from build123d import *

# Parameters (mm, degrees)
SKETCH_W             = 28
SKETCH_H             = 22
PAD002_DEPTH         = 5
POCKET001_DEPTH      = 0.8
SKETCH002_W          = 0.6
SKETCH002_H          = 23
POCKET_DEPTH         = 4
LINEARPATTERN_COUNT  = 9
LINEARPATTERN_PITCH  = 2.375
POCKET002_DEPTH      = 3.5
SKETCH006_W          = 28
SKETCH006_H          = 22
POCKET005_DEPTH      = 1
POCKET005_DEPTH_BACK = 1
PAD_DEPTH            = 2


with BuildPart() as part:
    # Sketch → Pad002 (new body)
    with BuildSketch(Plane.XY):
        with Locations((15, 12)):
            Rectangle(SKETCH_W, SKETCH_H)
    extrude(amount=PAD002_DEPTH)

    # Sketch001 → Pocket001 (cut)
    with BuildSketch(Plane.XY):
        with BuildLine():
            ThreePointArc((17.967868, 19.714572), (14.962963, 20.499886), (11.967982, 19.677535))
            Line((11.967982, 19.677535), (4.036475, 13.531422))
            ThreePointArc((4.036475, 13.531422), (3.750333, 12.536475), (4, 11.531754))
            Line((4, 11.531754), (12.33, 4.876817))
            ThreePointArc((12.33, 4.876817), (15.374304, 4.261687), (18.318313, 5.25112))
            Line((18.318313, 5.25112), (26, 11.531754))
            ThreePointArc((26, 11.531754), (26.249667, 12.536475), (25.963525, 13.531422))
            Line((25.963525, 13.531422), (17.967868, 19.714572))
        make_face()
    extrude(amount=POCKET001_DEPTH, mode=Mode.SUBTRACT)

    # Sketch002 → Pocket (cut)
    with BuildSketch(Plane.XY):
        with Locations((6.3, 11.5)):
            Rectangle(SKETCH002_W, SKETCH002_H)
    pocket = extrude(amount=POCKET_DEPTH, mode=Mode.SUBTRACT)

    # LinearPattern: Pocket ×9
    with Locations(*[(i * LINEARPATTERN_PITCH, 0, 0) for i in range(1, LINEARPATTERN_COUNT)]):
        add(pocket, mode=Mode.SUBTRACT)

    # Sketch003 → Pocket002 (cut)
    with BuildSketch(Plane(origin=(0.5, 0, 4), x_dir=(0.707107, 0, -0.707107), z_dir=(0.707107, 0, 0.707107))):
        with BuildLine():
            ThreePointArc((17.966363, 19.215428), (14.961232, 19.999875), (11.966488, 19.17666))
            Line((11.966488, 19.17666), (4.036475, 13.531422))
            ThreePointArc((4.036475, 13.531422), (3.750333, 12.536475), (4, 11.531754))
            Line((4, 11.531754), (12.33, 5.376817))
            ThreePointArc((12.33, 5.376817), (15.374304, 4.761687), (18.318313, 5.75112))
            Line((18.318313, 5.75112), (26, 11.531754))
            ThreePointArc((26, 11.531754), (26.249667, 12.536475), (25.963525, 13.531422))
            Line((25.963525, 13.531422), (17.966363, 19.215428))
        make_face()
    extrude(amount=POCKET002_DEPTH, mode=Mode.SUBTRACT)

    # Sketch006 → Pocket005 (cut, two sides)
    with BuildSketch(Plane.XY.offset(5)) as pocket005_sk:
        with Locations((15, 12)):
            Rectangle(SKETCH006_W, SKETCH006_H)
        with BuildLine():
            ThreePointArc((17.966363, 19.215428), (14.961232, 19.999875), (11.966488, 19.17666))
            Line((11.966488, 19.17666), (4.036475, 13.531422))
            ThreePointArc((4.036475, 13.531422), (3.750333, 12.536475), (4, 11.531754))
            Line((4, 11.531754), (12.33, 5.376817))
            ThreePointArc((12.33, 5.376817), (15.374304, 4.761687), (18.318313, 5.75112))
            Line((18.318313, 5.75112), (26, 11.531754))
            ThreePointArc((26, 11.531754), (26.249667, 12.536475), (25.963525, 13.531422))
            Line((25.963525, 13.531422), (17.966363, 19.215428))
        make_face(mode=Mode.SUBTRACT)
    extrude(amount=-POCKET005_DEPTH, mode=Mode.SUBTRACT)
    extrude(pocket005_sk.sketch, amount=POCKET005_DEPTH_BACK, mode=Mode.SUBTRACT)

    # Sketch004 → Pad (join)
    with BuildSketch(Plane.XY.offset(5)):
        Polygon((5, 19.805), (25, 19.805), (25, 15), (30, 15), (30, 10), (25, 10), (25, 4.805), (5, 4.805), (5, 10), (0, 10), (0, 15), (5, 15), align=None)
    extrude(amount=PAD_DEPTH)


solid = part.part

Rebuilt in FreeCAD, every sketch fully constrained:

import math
import FreeCAD as App
import Part
import Sketcher
Q = App.Units.Quantity

doc = App.newDocument("Part")
body = doc.addObject("PartDesign::Body", "Body")

# Sketch on XY plane
sketch1 = body.newObject("Sketcher::SketchObject", "Sketch")
sketch1.AttachmentSupport = (doc.getObject("XY_Plane"), [""])
sketch1.MapMode = "FlatFace"
sketch1.addGeometry(Part.LineSegment(App.Vector(1, 23, 0), App.Vector(1, 1, 0)), False)
sketch1.addGeometry(Part.LineSegment(App.Vector(1, 1, 0), App.Vector(29, 1, 0)), False)
sketch1.addGeometry(Part.LineSegment(App.Vector(29, 1, 0), App.Vector(29, 23, 0)), False)
sketch1.addGeometry(Part.LineSegment(App.Vector(29, 23, 0), App.Vector(1, 23, 0)), False)
sketch1.addConstraint(Sketcher.Constraint("Coincident", 0, 2, 1, 1))
sketch1.addConstraint(Sketcher.Constraint("Coincident", 1, 2, 2, 1))
sketch1.addConstraint(Sketcher.Constraint("Coincident", 2, 2, 3, 1))
sketch1.addConstraint(Sketcher.Constraint("Coincident", 3, 2, 0, 1))
sketch1.addConstraint(Sketcher.Constraint("Vertical", 0))
sketch1.addConstraint(Sketcher.Constraint("Horizontal", 1))
sketch1.addConstraint(Sketcher.Constraint("Vertical", 2))
sketch1.addConstraint(Sketcher.Constraint("Horizontal", 3))
sketch1.addConstraint(Sketcher.Constraint("DistanceX", 1, 1, 1, 2, Q("28 mm")))
sketch1.addConstraint(Sketcher.Constraint("DistanceY", 0, 2, 0, 1, Q("22 mm")))
sketch1.addConstraint(Sketcher.Constraint("DistanceX", -1, 1, 0, 2, Q("1 mm")))
sketch1.addConstraint(Sketcher.Constraint("DistanceY", -1, 1, 0, 2, Q("1 mm")))
pad1 = body.newObject("PartDesign::Pad", "Pad")
pad1.Profile = sketch1
pad1.Length = 5

# Sketch on XY plane
sketch2 = body.newObject("Sketcher::SketchObject", "Sketch001")
sketch2.AttachmentSupport = (doc.getObject("XY_Plane"), [""])
sketch2.MapMode = "FlatFace"
sketch2.addGeometry(Part.ArcOfCircle(Part.Circle(App.Vector(15, 14.5, 0), App.Vector(0, 0, 1), 6), math.radians(60), math.radians(120)), False)
sketch2.addGeometry(Part.LineSegment(App.Vector(12, 19.7, 0), App.Vector(4, 13.5, 0)), False)
sketch2.addGeometry(Part.ArcOfCircle(Part.Circle(App.Vector(5.8, 12.5, 0), App.Vector(0, 0, 1), 2), math.radians(149), math.radians(209)), False)
sketch2.addGeometry(Part.LineSegment(App.Vector(4, 11.5, 0), App.Vector(12.3, 4.9, 0)), False)
sketch2.addGeometry(Part.ArcOfCircle(Part.Circle(App.Vector(15, 10.3, 0), App.Vector(0, 0, 1), 6), math.radians(-116), math.radians(-56)), False)
sketch2.addGeometry(Part.LineSegment(App.Vector(18.3, 5.3, 0), App.Vector(26, 11.5, 0)), False)
sketch2.addGeometry(Part.ArcOfCircle(Part.Circle(App.Vector(24.2, 12.5, 0), App.Vector(0, 0, 1), 2), math.radians(-29), math.radians(31)), False)
sketch2.addGeometry(Part.LineSegment(App.Vector(26, 13.5, 0), App.Vector(18, 19.7, 0)), False)
sketch2.addConstraint(Sketcher.Constraint("Coincident", 0, 2, 1, 1))
sketch2.addConstraint(Sketcher.Constraint("Coincident", 1, 2, 2, 1))
sketch2.addConstraint(Sketcher.Constraint("Coincident", 2, 2, 3, 1))
sketch2.addConstraint(Sketcher.Constraint("Coincident", 3, 2, 4, 1))
sketch2.addConstraint(Sketcher.Constraint("Coincident", 4, 2, 5, 1))
sketch2.addConstraint(Sketcher.Constraint("Coincident", 5, 2, 6, 1))
sketch2.addConstraint(Sketcher.Constraint("Coincident", 6, 2, 7, 1))
sketch2.addConstraint(Sketcher.Constraint("Coincident", 7, 2, 0, 1))
sketch2.addConstraint(Sketcher.Constraint("Equal", 2, 6))
sketch2.addConstraint(Sketcher.Constraint("Horizontal", 2, 3, 6, 3))
sketch2.addConstraint(Sketcher.Constraint("Horizontal", 2, 2, 5, 2))
sketch2.addConstraint(Sketcher.Constraint("Horizontal", 1, 2, 6, 2))
sketch2.addConstraint(Sketcher.Constraint("Vertical", 0, 3, 4, 3))
sketch2.addConstraint(Sketcher.Constraint("Radius", 0, Q("5.999999 mm")))
sketch2.addConstraint(Sketcher.Constraint("Radius", 2, Q("2.000002 mm")))
sketch2.addConstraint(Sketcher.Constraint("Radius", 4, Q("6.000001 mm")))
sketch2.addConstraint(Sketcher.Constraint("DistanceX", -1, 1, 0, 3, Q("15 mm")))
sketch2.addConstraint(Sketcher.Constraint("DistanceX", -1, 1, 2, 2, Q("4 mm")))
sketch2.addConstraint(Sketcher.Constraint("DistanceX", -1, 1, 5, 2, Q("26 mm")))
sketch2.addConstraint(Sketcher.Constraint("DistanceY", 2, 3, 0, 3, Q("2.000002 mm")))
sketch2.addConstraint(Sketcher.Constraint("DistanceY", -1, 1, 0, 3, Q("14.500001 mm")))
sketch2.addConstraint(Sketcher.Constraint("DistanceY", -1, 1, 4, 3, Q("10.250002 mm")))
sketch2.addConstraint(Sketcher.Constraint("DistanceX", -1, 1, 3, 2, Q("12.33 mm")))
sketch2.addConstraint(Sketcher.Constraint("DistanceX", 2, 3, 4, 3, Q("9.249998 mm")))
sketch2.addConstraint(Sketcher.Constraint("DistanceY", 4, 2, 6, 2, Q("8.280302 mm")))
sketch2.addConstraint(Sketcher.Constraint("DistanceX", -1, 1, 0, 2, Q("11.967982 mm")))
sketch2.addConstraint(Sketcher.Constraint("DistanceY", -1, 1, 1, 2, Q("13.531422 mm")))
sketch2.addConstraint(Sketcher.Constraint("DistanceX", 0, 3, 7, 2, Q("2.967868 mm")))
pocket1 = body.newObject("PartDesign::Pocket", "Pocket")
pocket1.Profile = sketch2
pocket1.Length = 0.8
pocket1.Reversed = True

# Sketch on XY plane
sketch3 = body.newObject("Sketcher::SketchObject", "Sketch002")
sketch3.AttachmentSupport = (doc.getObject("XY_Plane"), [""])
sketch3.MapMode = "FlatFace"
sketch3.addGeometry(Part.LineSegment(App.Vector(6, 23, 0), App.Vector(6, 0, 0)), False)
sketch3.addGeometry(Part.LineSegment(App.Vector(6, 0, 0), App.Vector(6.6, 0, 0)), False)
sketch3.addGeometry(Part.LineSegment(App.Vector(6.6, 0, 0), App.Vector(6.6, 23, 0)), False)
sketch3.addGeometry(Part.LineSegment(App.Vector(6.6, 23, 0), App.Vector(6, 23, 0)), False)
sketch3.addConstraint(Sketcher.Constraint("Coincident", 0, 2, 1, 1))
sketch3.addConstraint(Sketcher.Constraint("Coincident", 1, 2, 2, 1))
sketch3.addConstraint(Sketcher.Constraint("Coincident", 2, 2, 3, 1))
sketch3.addConstraint(Sketcher.Constraint("Coincident", 3, 2, 0, 1))
sketch3.addConstraint(Sketcher.Constraint("Vertical", 0))
sketch3.addConstraint(Sketcher.Constraint("Horizontal", 1))
sketch3.addConstraint(Sketcher.Constraint("Vertical", 2))
sketch3.addConstraint(Sketcher.Constraint("Horizontal", 3))
sketch3.addConstraint(Sketcher.Constraint("PointOnObject", 0, 2, -1))
sketch3.addConstraint(Sketcher.Constraint("DistanceY", 0, 2, 0, 1, Q("23 mm")))
sketch3.addConstraint(Sketcher.Constraint("DistanceX", 1, 1, 1, 2, Q("0.6 mm")))
sketch3.addConstraint(Sketcher.Constraint("DistanceX", -1, 1, 0, 2, Q("6 mm")))
pocket2 = body.newObject("PartDesign::Pocket", "Pocket001")
pocket2.Profile = sketch3
pocket2.Length = 4
pocket2.Reversed = True
doc.recompute()

linearpattern = body.newObject("PartDesign::LinearPattern", "LinearPattern")
linearpattern.Originals = [pocket2]
linearpattern.Direction = (doc.getObject("X_Axis"), [""])
linearpattern.Mode = "offset"
linearpattern.Offset = 2.375
linearpattern.Occurrences = 9
body.Tip = linearpattern

# Sketch on an angled plane
sketch4 = body.newObject("Sketcher::SketchObject", "Sketch003")
sketch4.Placement = App.Placement(App.Vector(0.5, 0, 4), App.Rotation(App.Vector(0.707106781, 0, -0.707106781), App.Vector(0, 0.999999999, 0), App.Vector(0.707106781, 0, 0.707106781), "ZXY"))
sketch4.addGeometry(Part.ArcOfCircle(Part.Circle(App.Vector(15, 14, 0), App.Vector(0, 0, 1), 6), math.radians(60), math.radians(120)), False)
sketch4.addGeometry(Part.LineSegment(App.Vector(12, 19.2, 0), App.Vector(4, 13.5, 0)), False)
sketch4.addGeometry(Part.ArcOfCircle(Part.Circle(App.Vector(5.8, 12.5, 0), App.Vector(0, 0, 1), 2), math.radians(149), math.radians(209)), False)
sketch4.addGeometry(Part.LineSegment(App.Vector(4, 11.5, 0), App.Vector(12.3, 5.4, 0)), False)
sketch4.addGeometry(Part.ArcOfCircle(Part.Circle(App.Vector(15, 10.8, 0), App.Vector(0, 0, 1), 6), math.radians(-116), math.radians(-56)), False)
sketch4.addGeometry(Part.LineSegment(App.Vector(18.3, 5.8, 0), App.Vector(26, 11.5, 0)), False)
sketch4.addGeometry(Part.ArcOfCircle(Part.Circle(App.Vector(24.2, 12.5, 0), App.Vector(0, 0, 1), 2), math.radians(-29), math.radians(31)), False)
sketch4.addGeometry(Part.LineSegment(App.Vector(26, 13.5, 0), App.Vector(18, 19.2, 0)), False)
sketch4.addConstraint(Sketcher.Constraint("Coincident", 0, 2, 1, 1))
sketch4.addConstraint(Sketcher.Constraint("Coincident", 1, 2, 2, 1))
sketch4.addConstraint(Sketcher.Constraint("Coincident", 2, 2, 3, 1))
sketch4.addConstraint(Sketcher.Constraint("Coincident", 3, 2, 4, 1))
sketch4.addConstraint(Sketcher.Constraint("Coincident", 4, 2, 5, 1))
sketch4.addConstraint(Sketcher.Constraint("Coincident", 5, 2, 6, 1))
sketch4.addConstraint(Sketcher.Constraint("Coincident", 6, 2, 7, 1))
sketch4.addConstraint(Sketcher.Constraint("Coincident", 7, 2, 0, 1))
sketch4.addConstraint(Sketcher.Constraint("Equal", 2, 6))
sketch4.addConstraint(Sketcher.Constraint("Horizontal", 2, 3, 6, 3))
sketch4.addConstraint(Sketcher.Constraint("Horizontal", 2, 2, 5, 2))
sketch4.addConstraint(Sketcher.Constraint("Horizontal", 1, 2, 6, 2))
sketch4.addConstraint(Sketcher.Constraint("Vertical", 0, 3, 4, 3))
sketch4.addConstraint(Sketcher.Constraint("Radius", 0, Q("5.999999 mm")))
sketch4.addConstraint(Sketcher.Constraint("Radius", 2, Q("2.000002 mm")))
sketch4.addConstraint(Sketcher.Constraint("Radius", 4, Q("6.000001 mm")))
sketch4.addConstraint(Sketcher.Constraint("DistanceX", -1, 1, 0, 3, Q("15 mm")))
sketch4.addConstraint(Sketcher.Constraint("DistanceY", -1, 1, 0, 3, Q("14.000001 mm")))
sketch4.addConstraint(Sketcher.Constraint("DistanceX", -1, 1, 2, 2, Q("4 mm")))
sketch4.addConstraint(Sketcher.Constraint("DistanceX", -1, 1, 5, 2, Q("26 mm")))
sketch4.addConstraint(Sketcher.Constraint("DistanceY", -1, 1, 2, 3, Q("12.5 mm")))
sketch4.addConstraint(Sketcher.Constraint("DistanceY", -1, 1, 4, 3, Q("10.750002 mm")))
sketch4.addConstraint(Sketcher.Constraint("DistanceX", -1, 1, 3, 2, Q("12.33 mm")))
sketch4.addConstraint(Sketcher.Constraint("DistanceX", 2, 3, 4, 3, Q("9.249998 mm")))
sketch4.addConstraint(Sketcher.Constraint("DistanceY", 4, 2, 6, 2, Q("7.780302 mm")))
sketch4.addConstraint(Sketcher.Constraint("DistanceY", -1, 1, 0, 2, Q("19.17666 mm")))
sketch4.addConstraint(Sketcher.Constraint("DistanceY", -1, 1, 1, 2, Q("13.531422 mm")))
sketch4.addConstraint(Sketcher.Constraint("DistanceY", 6, 3, 7, 2, Q("6.715428 mm")))
pocket3 = body.newObject("PartDesign::Pocket", "Pocket002")
pocket3.Profile = sketch4
pocket3.Length = 3.5
pocket3.Reversed = True

# Sketch on XY plane
sketch5 = body.newObject("Sketcher::SketchObject", "Sketch004")
sketch5.AttachmentSupport = (doc.getObject("XY_Plane"), [""])
sketch5.MapMode = "FlatFace"
sketch5.AttachmentOffset = App.Placement(App.Vector(0, 0, 5), App.Rotation())
sketch5.addGeometry(Part.LineSegment(App.Vector(1, 23, 0), App.Vector(1, 1, 0)), False)
sketch5.addGeometry(Part.LineSegment(App.Vector(1, 1, 0), App.Vector(29, 1, 0)), False)
sketch5.addGeometry(Part.LineSegment(App.Vector(29, 1, 0), App.Vector(29, 23, 0)), False)
sketch5.addGeometry(Part.LineSegment(App.Vector(29, 23, 0), App.Vector(1, 23, 0)), False)
sketch5.addGeometry(Part.ArcOfCircle(Part.Circle(App.Vector(15, 14, 0), App.Vector(0, 0, 1), 6), math.radians(60), math.radians(120)), False)
sketch5.addGeometry(Part.LineSegment(App.Vector(18, 19.2, 0), App.Vector(26, 13.5, 0)), False)
sketch5.addGeometry(Part.ArcOfCircle(Part.Circle(App.Vector(24.2, 12.5, 0), App.Vector(0, 0, 1), 2), math.radians(-29), math.radians(31)), False)
sketch5.addGeometry(Part.LineSegment(App.Vector(26, 11.5, 0), App.Vector(18.3, 5.8, 0)), False)
sketch5.addGeometry(Part.ArcOfCircle(Part.Circle(App.Vector(15, 10.8, 0), App.Vector(0, 0, 1), 6), math.radians(-116), math.radians(-56)), False)
sketch5.addGeometry(Part.LineSegment(App.Vector(12.3, 5.4, 0), App.Vector(4, 11.5, 0)), False)
sketch5.addGeometry(Part.ArcOfCircle(Part.Circle(App.Vector(5.8, 12.5, 0), App.Vector(0, 0, 1), 2), math.radians(149), math.radians(209)), False)
sketch5.addGeometry(Part.LineSegment(App.Vector(4, 13.5, 0), App.Vector(12, 19.2, 0)), False)
sketch5.addConstraint(Sketcher.Constraint("Coincident", 0, 2, 1, 1))
sketch5.addConstraint(Sketcher.Constraint("Coincident", 1, 2, 2, 1))
sketch5.addConstraint(Sketcher.Constraint("Coincident", 2, 2, 3, 1))
sketch5.addConstraint(Sketcher.Constraint("Coincident", 3, 2, 0, 1))
sketch5.addConstraint(Sketcher.Constraint("Coincident", 4, 1, 5, 1))
sketch5.addConstraint(Sketcher.Constraint("Coincident", 5, 2, 6, 2))
sketch5.addConstraint(Sketcher.Constraint("Coincident", 6, 1, 7, 1))
sketch5.addConstraint(Sketcher.Constraint("Coincident", 7, 2, 8, 2))
sketch5.addConstraint(Sketcher.Constraint("Coincident", 8, 1, 9, 1))
sketch5.addConstraint(Sketcher.Constraint("Coincident", 9, 2, 10, 2))
sketch5.addConstraint(Sketcher.Constraint("Coincident", 10, 1, 11, 1))
sketch5.addConstraint(Sketcher.Constraint("Coincident", 11, 2, 4, 2))
sketch5.addConstraint(Sketcher.Constraint("Vertical", 0))
sketch5.addConstraint(Sketcher.Constraint("Horizontal", 1))
sketch5.addConstraint(Sketcher.Constraint("Vertical", 2))
sketch5.addConstraint(Sketcher.Constraint("Horizontal", 3))
sketch5.addConstraint(Sketcher.Constraint("Equal", 6, 10))
sketch5.addConstraint(Sketcher.Constraint("Horizontal", 6, 3, 10, 3))
sketch5.addConstraint(Sketcher.Constraint("Horizontal", 6, 1, 9, 2))
sketch5.addConstraint(Sketcher.Constraint("Horizontal", 5, 2, 10, 1))
sketch5.addConstraint(Sketcher.Constraint("Vertical", 4, 3, 8, 3))
sketch5.addConstraint(Sketcher.Constraint("Radius", 4, Q("5.999999 mm")))
sketch5.addConstraint(Sketcher.Constraint("Radius", 6, Q("2.000002 mm")))
sketch5.addConstraint(Sketcher.Constraint("Radius", 8, Q("6.000001 mm")))
sketch5.addConstraint(Sketcher.Constraint("DistanceX", 1, 1, 1, 2, Q("28 mm")))
sketch5.addConstraint(Sketcher.Constraint("DistanceY", 0, 2, 0, 1, Q("22 mm")))
sketch5.addConstraint(Sketcher.Constraint("DistanceX", -1, 1, 4, 3, Q("15 mm")))
sketch5.addConstraint(Sketcher.Constraint("DistanceY", -1, 1, 4, 3, Q("14.000001 mm")))
sketch5.addConstraint(Sketcher.Constraint("DistanceX", -1, 1, 0, 2, Q("1 mm")))
sketch5.addConstraint(Sketcher.Constraint("DistanceY", -1, 1, 0, 2, Q("1 mm")))
sketch5.addConstraint(Sketcher.Constraint("DistanceX", -1, 1, 6, 1, Q("26 mm")))
sketch5.addConstraint(Sketcher.Constraint("DistanceX", -1, 1, 9, 2, Q("4 mm")))
sketch5.addConstraint(Sketcher.Constraint("DistanceY", -1, 1, 6, 3, Q("12.5 mm")))
sketch5.addConstraint(Sketcher.Constraint("DistanceY", -1, 1, 8, 3, Q("10.750002 mm")))
sketch5.addConstraint(Sketcher.Constraint("DistanceX", -1, 1, 8, 1, Q("12.33 mm")))
sketch5.addConstraint(Sketcher.Constraint("DistanceX", 4, 3, 6, 3, Q("9.249998 mm")))
sketch5.addConstraint(Sketcher.Constraint("DistanceY", 7, 2, 5, 2, Q("7.780302 mm")))
sketch5.addConstraint(Sketcher.Constraint("DistanceY", -1, 1, 4, 1, Q("19.215428 mm")))
sketch5.addConstraint(Sketcher.Constraint("DistanceY", -1, 1, 5, 2, Q("13.531422 mm")))
sketch5.addConstraint(Sketcher.Constraint("DistanceY", -1, 1, 11, 2, Q("19.17666 mm")))
pocket4 = body.newObject("PartDesign::Pocket", "Pocket003")
pocket4.Profile = sketch5
pocket4.Type = "TwoLengths"
pocket4.Length = 1
pocket4.Length2 = 1

# Sketch on XY plane
sketch6 = body.newObject("Sketcher::SketchObject", "Sketch005")
sketch6.AttachmentSupport = (doc.getObject("XY_Plane"), [""])
sketch6.MapMode = "FlatFace"
sketch6.AttachmentOffset = App.Placement(App.Vector(0, 0, 5), App.Rotation())
sketch6.addGeometry(Part.LineSegment(App.Vector(25, 19.8, 0), App.Vector(5, 19.8, 0)), False)
sketch6.addGeometry(Part.LineSegment(App.Vector(5, 19.8, 0), App.Vector(5, 15, 0)), False)
sketch6.addGeometry(Part.LineSegment(App.Vector(5, 15, 0), App.Vector(0, 15, 0)), False)
sketch6.addGeometry(Part.LineSegment(App.Vector(0, 15, 0), App.Vector(0, 10, 0)), False)
sketch6.addGeometry(Part.LineSegment(App.Vector(0, 10, 0), App.Vector(5, 10, 0)), False)
sketch6.addGeometry(Part.LineSegment(App.Vector(5, 10, 0), App.Vector(5, 4.8, 0)), False)
sketch6.addGeometry(Part.LineSegment(App.Vector(5, 4.8, 0), App.Vector(25, 4.8, 0)), False)
sketch6.addGeometry(Part.LineSegment(App.Vector(25, 4.8, 0), App.Vector(25, 10, 0)), False)
sketch6.addGeometry(Part.LineSegment(App.Vector(25, 10, 0), App.Vector(30, 10, 0)), False)
sketch6.addGeometry(Part.LineSegment(App.Vector(30, 10, 0), App.Vector(30, 15, 0)), False)
sketch6.addGeometry(Part.LineSegment(App.Vector(30, 15, 0), App.Vector(25, 15, 0)), False)
sketch6.addGeometry(Part.LineSegment(App.Vector(25, 15, 0), App.Vector(25, 19.8, 0)), False)
sketch6.addConstraint(Sketcher.Constraint("Coincident", 0, 2, 1, 1))
sketch6.addConstraint(Sketcher.Constraint("Coincident", 1, 2, 2, 1))
sketch6.addConstraint(Sketcher.Constraint("Coincident", 2, 2, 3, 1))
sketch6.addConstraint(Sketcher.Constraint("Coincident", 3, 2, 4, 1))
sketch6.addConstraint(Sketcher.Constraint("Coincident", 4, 2, 5, 1))
sketch6.addConstraint(Sketcher.Constraint("Coincident", 5, 2, 6, 1))
sketch6.addConstraint(Sketcher.Constraint("Coincident", 6, 2, 7, 1))
sketch6.addConstraint(Sketcher.Constraint("Coincident", 7, 2, 8, 1))
sketch6.addConstraint(Sketcher.Constraint("Coincident", 8, 2, 9, 1))
sketch6.addConstraint(Sketcher.Constraint("Coincident", 9, 2, 10, 1))
sketch6.addConstraint(Sketcher.Constraint("Coincident", 10, 2, 11, 1))
sketch6.addConstraint(Sketcher.Constraint("Coincident", 11, 2, 0, 1))
sketch6.addConstraint(Sketcher.Constraint("Horizontal", 0))
sketch6.addConstraint(Sketcher.Constraint("Vertical", 1))
sketch6.addConstraint(Sketcher.Constraint("Horizontal", 2))
sketch6.addConstraint(Sketcher.Constraint("Vertical", 3))
sketch6.addConstraint(Sketcher.Constraint("Horizontal", 4))
sketch6.addConstraint(Sketcher.Constraint("Vertical", 5))
sketch6.addConstraint(Sketcher.Constraint("Horizontal", 6))
sketch6.addConstraint(Sketcher.Constraint("Vertical", 7))
sketch6.addConstraint(Sketcher.Constraint("Horizontal", 8))
sketch6.addConstraint(Sketcher.Constraint("Vertical", 9))
sketch6.addConstraint(Sketcher.Constraint("Horizontal", 10))
sketch6.addConstraint(Sketcher.Constraint("Vertical", 11))
sketch6.addConstraint(Sketcher.Constraint("PointOnObject", 2, 2, -2))
sketch6.addConstraint(Sketcher.Constraint("Horizontal", 4, 2, 7, 2))
sketch6.addConstraint(Sketcher.Constraint("Horizontal", 2, 2, 9, 2))
sketch6.addConstraint(Sketcher.Constraint("Vertical", 1, 2, 4, 2))
sketch6.addConstraint(Sketcher.Constraint("Vertical", 7, 2, 10, 2))
sketch6.addConstraint(Sketcher.Constraint("Equal", 4, 8))
sketch6.addConstraint(Sketcher.Constraint("Equal", 10, 3))
sketch6.addConstraint(Sketcher.Constraint("DistanceX", 0, 2, 0, 1, Q("20 mm")))
sketch6.addConstraint(Sketcher.Constraint("DistanceX", 2, 2, 2, 1, Q("5 mm")))
sketch6.addConstraint(Sketcher.Constraint("DistanceY", -1, 1, 1, 2, Q("15 mm")))
sketch6.addConstraint(Sketcher.Constraint("DistanceY", 5, 2, 0, 2, Q("15 mm")))
sketch6.addConstraint(Sketcher.Constraint("DistanceY", 1, 2, 1, 1, Q("4.805 mm")))
pad2 = body.newObject("PartDesign::Pad", "Pad001")
pad2.Profile = sketch6
pad2.Length = 2

doc.recompute()
